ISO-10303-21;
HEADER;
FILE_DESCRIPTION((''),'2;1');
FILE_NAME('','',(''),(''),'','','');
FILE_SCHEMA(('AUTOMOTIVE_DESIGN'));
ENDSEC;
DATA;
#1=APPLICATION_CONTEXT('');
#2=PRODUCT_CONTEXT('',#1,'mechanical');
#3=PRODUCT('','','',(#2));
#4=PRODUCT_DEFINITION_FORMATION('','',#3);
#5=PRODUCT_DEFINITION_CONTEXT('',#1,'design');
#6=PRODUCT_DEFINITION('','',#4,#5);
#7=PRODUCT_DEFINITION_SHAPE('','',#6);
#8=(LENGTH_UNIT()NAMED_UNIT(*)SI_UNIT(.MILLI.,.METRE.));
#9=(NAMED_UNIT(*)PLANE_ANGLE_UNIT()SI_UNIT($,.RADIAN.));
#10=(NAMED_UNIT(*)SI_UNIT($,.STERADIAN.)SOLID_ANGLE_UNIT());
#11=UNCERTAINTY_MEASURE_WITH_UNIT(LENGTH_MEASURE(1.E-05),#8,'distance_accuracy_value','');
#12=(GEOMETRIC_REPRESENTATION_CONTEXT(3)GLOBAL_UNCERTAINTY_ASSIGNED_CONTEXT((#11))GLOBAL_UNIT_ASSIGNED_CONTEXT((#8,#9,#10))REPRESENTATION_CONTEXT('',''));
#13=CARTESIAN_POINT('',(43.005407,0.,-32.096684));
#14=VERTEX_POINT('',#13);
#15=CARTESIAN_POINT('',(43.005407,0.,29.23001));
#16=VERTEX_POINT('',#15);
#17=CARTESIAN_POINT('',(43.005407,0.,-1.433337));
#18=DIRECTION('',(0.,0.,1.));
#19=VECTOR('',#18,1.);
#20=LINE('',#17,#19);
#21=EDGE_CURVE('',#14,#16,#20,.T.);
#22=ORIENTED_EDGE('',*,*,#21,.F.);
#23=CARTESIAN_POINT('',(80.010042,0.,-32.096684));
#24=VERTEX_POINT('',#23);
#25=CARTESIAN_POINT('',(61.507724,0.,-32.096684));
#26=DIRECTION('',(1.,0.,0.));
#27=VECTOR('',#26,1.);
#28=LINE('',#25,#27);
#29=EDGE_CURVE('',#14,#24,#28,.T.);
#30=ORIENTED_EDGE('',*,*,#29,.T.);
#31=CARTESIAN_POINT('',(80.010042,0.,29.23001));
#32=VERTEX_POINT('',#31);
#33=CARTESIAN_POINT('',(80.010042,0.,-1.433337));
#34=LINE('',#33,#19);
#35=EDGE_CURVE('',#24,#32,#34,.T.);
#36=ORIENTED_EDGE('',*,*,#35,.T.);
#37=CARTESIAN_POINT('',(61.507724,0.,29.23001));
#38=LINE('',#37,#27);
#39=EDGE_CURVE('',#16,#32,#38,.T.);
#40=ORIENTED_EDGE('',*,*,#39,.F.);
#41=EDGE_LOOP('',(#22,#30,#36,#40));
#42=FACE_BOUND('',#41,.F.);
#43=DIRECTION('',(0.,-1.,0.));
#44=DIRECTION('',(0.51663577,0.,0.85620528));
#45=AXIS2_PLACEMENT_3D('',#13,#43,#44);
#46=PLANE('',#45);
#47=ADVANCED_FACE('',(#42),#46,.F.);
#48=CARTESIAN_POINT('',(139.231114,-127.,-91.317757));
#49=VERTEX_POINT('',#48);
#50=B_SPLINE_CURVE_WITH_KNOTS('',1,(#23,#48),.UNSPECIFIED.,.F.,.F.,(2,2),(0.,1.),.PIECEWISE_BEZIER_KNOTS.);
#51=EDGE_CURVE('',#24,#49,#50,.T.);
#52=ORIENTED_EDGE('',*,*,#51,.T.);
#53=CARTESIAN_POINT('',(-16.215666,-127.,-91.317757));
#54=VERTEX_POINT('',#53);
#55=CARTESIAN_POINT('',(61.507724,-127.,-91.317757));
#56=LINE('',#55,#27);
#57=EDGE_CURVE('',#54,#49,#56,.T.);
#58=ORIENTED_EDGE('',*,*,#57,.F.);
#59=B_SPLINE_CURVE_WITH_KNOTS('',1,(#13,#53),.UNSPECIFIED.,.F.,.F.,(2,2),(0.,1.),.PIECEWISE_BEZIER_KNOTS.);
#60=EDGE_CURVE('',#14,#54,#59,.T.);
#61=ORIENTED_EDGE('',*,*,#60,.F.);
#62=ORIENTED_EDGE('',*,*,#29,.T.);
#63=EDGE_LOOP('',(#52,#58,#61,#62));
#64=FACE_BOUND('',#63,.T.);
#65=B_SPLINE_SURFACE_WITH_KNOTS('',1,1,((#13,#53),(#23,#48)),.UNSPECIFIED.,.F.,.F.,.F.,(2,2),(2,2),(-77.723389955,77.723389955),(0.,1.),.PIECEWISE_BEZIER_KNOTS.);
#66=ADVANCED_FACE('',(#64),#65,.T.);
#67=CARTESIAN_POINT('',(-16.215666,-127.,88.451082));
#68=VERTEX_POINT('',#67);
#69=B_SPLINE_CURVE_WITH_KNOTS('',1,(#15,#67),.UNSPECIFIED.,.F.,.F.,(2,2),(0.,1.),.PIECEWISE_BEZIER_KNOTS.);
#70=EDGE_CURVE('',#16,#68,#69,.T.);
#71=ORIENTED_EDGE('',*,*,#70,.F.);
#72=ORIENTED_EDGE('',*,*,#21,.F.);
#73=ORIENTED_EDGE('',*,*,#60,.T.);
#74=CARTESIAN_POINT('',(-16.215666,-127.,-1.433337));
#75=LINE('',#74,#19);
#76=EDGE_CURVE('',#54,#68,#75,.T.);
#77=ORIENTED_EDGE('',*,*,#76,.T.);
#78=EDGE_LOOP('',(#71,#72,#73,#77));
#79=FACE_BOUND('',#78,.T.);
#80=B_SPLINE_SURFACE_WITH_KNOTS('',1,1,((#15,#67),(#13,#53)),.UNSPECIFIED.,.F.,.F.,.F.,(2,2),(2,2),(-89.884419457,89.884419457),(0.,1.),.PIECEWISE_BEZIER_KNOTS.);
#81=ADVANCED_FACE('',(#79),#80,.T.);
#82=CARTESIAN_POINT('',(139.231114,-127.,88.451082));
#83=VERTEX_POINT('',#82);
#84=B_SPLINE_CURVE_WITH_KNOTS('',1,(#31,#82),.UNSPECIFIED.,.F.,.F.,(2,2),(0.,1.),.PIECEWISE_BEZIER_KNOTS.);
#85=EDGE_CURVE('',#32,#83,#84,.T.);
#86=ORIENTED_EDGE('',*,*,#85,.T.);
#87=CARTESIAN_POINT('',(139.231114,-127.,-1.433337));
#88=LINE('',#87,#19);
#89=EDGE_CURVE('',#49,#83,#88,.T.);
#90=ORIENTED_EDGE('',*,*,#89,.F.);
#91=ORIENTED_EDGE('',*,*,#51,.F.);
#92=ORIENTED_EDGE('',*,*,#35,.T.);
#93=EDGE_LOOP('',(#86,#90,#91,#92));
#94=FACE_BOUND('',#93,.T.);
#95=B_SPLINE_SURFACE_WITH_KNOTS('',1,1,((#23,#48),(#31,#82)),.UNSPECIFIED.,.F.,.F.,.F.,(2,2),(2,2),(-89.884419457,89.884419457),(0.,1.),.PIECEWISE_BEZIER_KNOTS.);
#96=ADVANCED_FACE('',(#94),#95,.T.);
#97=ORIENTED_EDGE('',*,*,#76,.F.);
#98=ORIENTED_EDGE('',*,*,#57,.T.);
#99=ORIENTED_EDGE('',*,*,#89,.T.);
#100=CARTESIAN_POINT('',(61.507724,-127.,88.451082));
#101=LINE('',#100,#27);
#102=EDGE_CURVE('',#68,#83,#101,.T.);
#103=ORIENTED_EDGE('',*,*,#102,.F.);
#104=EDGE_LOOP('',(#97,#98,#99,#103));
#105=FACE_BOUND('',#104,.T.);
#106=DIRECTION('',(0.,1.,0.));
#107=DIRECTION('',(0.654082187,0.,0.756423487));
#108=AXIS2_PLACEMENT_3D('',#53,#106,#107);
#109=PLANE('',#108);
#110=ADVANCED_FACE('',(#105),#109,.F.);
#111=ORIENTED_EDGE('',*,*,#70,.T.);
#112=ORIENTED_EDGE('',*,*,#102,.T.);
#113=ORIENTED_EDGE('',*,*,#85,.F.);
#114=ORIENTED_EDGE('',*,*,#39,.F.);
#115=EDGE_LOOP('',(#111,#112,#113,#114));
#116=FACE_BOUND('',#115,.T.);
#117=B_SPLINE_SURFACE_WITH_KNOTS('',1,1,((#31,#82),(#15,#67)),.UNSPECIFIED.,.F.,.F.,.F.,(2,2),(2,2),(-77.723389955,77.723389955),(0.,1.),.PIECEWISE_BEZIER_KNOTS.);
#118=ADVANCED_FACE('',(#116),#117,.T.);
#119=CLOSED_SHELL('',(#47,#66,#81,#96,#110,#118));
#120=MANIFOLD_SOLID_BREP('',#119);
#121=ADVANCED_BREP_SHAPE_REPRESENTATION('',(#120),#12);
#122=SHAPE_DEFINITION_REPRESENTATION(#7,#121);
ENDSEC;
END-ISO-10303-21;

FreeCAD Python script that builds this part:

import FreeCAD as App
import Part
import Sketcher
from FreeCAD import Vector
Q = App.Units.Quantity

doc = App.newDocument("Part")
params = doc.addObject("Spreadsheet::Sheet", "Params")
for row, (alias, value) in enumerate([
    ("pad1_length", "5 in"),
    ("pad1_taper", "25 deg"),
], start=1):
    params.set(f"A{row}", alias)
    params.set(f"B{row}", "=" + value)
    params.setAlias(f"B{row}", alias)

body = doc.addObject("PartDesign::Body", "Body")

# Sketch on XZ plane
sketch1 = body.newObject("Sketcher::SketchObject", "Sketch")
sketch1.AttachmentSupport = (doc.getObject("XZ_Plane"), [""])
sketch1.MapMode = "FlatFace"
sketch1.addGeometry([
    Part.LineSegment(Vector(43, 29, 0), Vector(43, -32, 0)),
    Part.LineSegment(Vector(43, -32, 0), Vector(80, -32, 0)),
    Part.LineSegment(Vector(80, -32, 0), Vector(80, 29, 0)),
    Part.LineSegment(Vector(80, 29, 0), Vector(43, 29, 0)),
], False)
sketch1.addConstraint([
    Sketcher.Constraint("Coincident", 0, 2, 1, 1),
    Sketcher.Constraint("Coincident", 1, 2, 2, 1),
    Sketcher.Constraint("Coincident", 2, 2, 3, 1),
    Sketcher.Constraint("Coincident", 3, 2, 0, 1),
    Sketcher.Constraint("Vertical", 0),
    Sketcher.Constraint("Horizontal", 1),
    Sketcher.Constraint("Vertical", 2),
    Sketcher.Constraint("Horizontal", 3),
    Sketcher.Constraint("DistanceX", 1, 1, 1, 2, Q("37.004635 mm")),
    Sketcher.Constraint("DistanceY", 0, 2, 0, 1, Q("61.326694 mm")),
    Sketcher.Constraint("DistanceX", -1, 1, 1, 2, Q("80.010042 mm")),
    Sketcher.Constraint("DistanceY", -1, 1, 2, 2, Q("29.23001 mm")),
])
pad1 = body.newObject("PartDesign::Pad", "Pad")
pad1.Profile = sketch1
pad1.setExpression("Length", "Params.pad1_length")
pad1.setExpression("TaperAngle", "Params.pad1_taper")

doc.recompute()
